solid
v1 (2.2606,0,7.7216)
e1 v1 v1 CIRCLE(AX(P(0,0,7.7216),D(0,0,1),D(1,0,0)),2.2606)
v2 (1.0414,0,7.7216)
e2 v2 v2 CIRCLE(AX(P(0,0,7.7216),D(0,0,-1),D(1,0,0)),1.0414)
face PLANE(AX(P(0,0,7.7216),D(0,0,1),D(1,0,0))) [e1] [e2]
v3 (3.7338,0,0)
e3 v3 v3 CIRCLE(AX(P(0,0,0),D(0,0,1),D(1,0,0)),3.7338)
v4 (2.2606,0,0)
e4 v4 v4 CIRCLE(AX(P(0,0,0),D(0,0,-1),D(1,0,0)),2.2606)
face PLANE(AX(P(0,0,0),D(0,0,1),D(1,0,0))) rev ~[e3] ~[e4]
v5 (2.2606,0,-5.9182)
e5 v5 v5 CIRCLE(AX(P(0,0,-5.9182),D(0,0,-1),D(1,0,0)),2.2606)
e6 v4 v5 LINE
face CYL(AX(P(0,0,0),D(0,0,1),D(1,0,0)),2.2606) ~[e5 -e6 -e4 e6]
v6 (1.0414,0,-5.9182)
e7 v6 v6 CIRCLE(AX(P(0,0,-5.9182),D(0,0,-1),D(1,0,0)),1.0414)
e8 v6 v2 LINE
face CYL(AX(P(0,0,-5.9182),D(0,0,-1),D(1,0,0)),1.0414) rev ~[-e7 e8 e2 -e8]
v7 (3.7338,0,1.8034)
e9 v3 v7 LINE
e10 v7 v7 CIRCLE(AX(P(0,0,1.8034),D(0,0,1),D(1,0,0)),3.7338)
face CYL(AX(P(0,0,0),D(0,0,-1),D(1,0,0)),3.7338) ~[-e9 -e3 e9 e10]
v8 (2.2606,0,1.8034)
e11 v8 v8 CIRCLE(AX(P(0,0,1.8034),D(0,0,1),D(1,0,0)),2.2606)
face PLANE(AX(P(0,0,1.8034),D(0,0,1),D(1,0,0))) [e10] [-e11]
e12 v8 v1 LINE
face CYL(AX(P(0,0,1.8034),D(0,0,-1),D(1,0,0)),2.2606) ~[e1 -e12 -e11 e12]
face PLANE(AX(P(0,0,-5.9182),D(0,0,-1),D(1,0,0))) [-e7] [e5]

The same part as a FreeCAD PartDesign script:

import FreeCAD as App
import Part
import Sketcher
Q = App.Units.Quantity

doc = App.newDocument("Part")
body = doc.addObject("PartDesign::Body", "Body")

# Sketch on XY plane
sketch1 = doc.addObject("Sketcher::SketchObject", "Sketch")
body.addObject(sketch1)
sketch1.AttachmentSupport = (doc.XY_Plane, [""])
sketch1.MapMode = "FlatFace"
sketch1.addGeometry(Part.Circle(App.Vector(0, 0, 0), App.Vector(0, 0, 1), 3.7), False)
sketch1.addConstraint(Sketcher.Constraint("Coincident", 0, 3, -1, 1))
sketch1.addConstraint(Sketcher.Constraint("Diameter", 0, Q("0.294 in")))
pad1 = doc.addObject("PartDesign::Pad", "Pad")
body.addObject(pad1)
pad1.Profile = sketch1
pad1.Length = Q("0.071 in")

# Sketch on XY plane
sketch2 = doc.addObject("Sketcher::SketchObject", "Sketch001")
body.addObject(sketch2)
sketch2.AttachmentSupport = (doc.XY_Plane, [""])
sketch2.MapMode = "FlatFace"
sketch2.AttachmentOffset = App.Placement(App.Vector(0, 0, 0.071 * 25.4), App.Rotation())
sketch2.addGeometry(Part.Circle(App.Vector(0, 0, 0), App.Vector(0, 0, 1), 2.3), False)
sketch2.addConstraint(Sketcher.Constraint("Coincident", 0, 3, -1, 1))
sketch2.addConstraint(Sketcher.Constraint("Diameter", 0, Q("0.178 in")))
pad2 = doc.addObject("PartDesign::Pad", "Pad001")
body.addObject(pad2)
pad2.Profile = sketch2
pad2.Length = Q("0.233 in")

# Sketch on XY plane
sketch3 = doc.addObject("Sketcher::SketchObject", "Sketch002")
body.addObject(sketch3)
sketch3.AttachmentSupport = (doc.XY_Plane, [""])
sketch3.MapMode = "FlatFace"
sketch3.addGeometry(Part.Circle(App.Vector(0, 0, 0), App.Vector(0, 0, 1), 2.3), False)
sketch3.addConstraint(Sketcher.Constraint("Coincident", 0, 3, -1, 1))
sketch3.addConstraint(Sketcher.Constraint("Diameter", 0, Q("0.178 in")))
pad3 = doc.addObject("PartDesign::Pad", "Pad002")
body.addObject(pad3)
pad3.Profile = sketch3
pad3.Length = Q("0.233 in")
pad3.Reversed = True

# Sketch on XY plane
sketch4 = doc.addObject("Sketcher::SketchObject", "Sketch003")
body.addObject(sketch4)
sketch4.AttachmentSupport = (doc.XY_Plane, [""])
sketch4.MapMode = "FlatFace"
sketch4.AttachmentOffset = App.Placement(App.Vector(0, 0, -0.233 * 25.4), App.Rotation())
sketch4.addGeometry(Part.Circle(App.Vector(0, 0, 0), App.Vector(0, 0, 1), 1), False)
sketch4.addConstraint(Sketcher.Constraint("Coincident", 0, 3, -1, 1))
sketch4.addConstraint(Sketcher.Constraint("Diameter", 0, Q("0.082 in")))
pocket1 = doc.addObject("PartDesign::Pocket", "Pocket")
body.addObject(pocket1)
pocket1.Profile = sketch4
pocket1.Length = Q("1 in")
pocket1.Reversed = True

doc.recompute()
